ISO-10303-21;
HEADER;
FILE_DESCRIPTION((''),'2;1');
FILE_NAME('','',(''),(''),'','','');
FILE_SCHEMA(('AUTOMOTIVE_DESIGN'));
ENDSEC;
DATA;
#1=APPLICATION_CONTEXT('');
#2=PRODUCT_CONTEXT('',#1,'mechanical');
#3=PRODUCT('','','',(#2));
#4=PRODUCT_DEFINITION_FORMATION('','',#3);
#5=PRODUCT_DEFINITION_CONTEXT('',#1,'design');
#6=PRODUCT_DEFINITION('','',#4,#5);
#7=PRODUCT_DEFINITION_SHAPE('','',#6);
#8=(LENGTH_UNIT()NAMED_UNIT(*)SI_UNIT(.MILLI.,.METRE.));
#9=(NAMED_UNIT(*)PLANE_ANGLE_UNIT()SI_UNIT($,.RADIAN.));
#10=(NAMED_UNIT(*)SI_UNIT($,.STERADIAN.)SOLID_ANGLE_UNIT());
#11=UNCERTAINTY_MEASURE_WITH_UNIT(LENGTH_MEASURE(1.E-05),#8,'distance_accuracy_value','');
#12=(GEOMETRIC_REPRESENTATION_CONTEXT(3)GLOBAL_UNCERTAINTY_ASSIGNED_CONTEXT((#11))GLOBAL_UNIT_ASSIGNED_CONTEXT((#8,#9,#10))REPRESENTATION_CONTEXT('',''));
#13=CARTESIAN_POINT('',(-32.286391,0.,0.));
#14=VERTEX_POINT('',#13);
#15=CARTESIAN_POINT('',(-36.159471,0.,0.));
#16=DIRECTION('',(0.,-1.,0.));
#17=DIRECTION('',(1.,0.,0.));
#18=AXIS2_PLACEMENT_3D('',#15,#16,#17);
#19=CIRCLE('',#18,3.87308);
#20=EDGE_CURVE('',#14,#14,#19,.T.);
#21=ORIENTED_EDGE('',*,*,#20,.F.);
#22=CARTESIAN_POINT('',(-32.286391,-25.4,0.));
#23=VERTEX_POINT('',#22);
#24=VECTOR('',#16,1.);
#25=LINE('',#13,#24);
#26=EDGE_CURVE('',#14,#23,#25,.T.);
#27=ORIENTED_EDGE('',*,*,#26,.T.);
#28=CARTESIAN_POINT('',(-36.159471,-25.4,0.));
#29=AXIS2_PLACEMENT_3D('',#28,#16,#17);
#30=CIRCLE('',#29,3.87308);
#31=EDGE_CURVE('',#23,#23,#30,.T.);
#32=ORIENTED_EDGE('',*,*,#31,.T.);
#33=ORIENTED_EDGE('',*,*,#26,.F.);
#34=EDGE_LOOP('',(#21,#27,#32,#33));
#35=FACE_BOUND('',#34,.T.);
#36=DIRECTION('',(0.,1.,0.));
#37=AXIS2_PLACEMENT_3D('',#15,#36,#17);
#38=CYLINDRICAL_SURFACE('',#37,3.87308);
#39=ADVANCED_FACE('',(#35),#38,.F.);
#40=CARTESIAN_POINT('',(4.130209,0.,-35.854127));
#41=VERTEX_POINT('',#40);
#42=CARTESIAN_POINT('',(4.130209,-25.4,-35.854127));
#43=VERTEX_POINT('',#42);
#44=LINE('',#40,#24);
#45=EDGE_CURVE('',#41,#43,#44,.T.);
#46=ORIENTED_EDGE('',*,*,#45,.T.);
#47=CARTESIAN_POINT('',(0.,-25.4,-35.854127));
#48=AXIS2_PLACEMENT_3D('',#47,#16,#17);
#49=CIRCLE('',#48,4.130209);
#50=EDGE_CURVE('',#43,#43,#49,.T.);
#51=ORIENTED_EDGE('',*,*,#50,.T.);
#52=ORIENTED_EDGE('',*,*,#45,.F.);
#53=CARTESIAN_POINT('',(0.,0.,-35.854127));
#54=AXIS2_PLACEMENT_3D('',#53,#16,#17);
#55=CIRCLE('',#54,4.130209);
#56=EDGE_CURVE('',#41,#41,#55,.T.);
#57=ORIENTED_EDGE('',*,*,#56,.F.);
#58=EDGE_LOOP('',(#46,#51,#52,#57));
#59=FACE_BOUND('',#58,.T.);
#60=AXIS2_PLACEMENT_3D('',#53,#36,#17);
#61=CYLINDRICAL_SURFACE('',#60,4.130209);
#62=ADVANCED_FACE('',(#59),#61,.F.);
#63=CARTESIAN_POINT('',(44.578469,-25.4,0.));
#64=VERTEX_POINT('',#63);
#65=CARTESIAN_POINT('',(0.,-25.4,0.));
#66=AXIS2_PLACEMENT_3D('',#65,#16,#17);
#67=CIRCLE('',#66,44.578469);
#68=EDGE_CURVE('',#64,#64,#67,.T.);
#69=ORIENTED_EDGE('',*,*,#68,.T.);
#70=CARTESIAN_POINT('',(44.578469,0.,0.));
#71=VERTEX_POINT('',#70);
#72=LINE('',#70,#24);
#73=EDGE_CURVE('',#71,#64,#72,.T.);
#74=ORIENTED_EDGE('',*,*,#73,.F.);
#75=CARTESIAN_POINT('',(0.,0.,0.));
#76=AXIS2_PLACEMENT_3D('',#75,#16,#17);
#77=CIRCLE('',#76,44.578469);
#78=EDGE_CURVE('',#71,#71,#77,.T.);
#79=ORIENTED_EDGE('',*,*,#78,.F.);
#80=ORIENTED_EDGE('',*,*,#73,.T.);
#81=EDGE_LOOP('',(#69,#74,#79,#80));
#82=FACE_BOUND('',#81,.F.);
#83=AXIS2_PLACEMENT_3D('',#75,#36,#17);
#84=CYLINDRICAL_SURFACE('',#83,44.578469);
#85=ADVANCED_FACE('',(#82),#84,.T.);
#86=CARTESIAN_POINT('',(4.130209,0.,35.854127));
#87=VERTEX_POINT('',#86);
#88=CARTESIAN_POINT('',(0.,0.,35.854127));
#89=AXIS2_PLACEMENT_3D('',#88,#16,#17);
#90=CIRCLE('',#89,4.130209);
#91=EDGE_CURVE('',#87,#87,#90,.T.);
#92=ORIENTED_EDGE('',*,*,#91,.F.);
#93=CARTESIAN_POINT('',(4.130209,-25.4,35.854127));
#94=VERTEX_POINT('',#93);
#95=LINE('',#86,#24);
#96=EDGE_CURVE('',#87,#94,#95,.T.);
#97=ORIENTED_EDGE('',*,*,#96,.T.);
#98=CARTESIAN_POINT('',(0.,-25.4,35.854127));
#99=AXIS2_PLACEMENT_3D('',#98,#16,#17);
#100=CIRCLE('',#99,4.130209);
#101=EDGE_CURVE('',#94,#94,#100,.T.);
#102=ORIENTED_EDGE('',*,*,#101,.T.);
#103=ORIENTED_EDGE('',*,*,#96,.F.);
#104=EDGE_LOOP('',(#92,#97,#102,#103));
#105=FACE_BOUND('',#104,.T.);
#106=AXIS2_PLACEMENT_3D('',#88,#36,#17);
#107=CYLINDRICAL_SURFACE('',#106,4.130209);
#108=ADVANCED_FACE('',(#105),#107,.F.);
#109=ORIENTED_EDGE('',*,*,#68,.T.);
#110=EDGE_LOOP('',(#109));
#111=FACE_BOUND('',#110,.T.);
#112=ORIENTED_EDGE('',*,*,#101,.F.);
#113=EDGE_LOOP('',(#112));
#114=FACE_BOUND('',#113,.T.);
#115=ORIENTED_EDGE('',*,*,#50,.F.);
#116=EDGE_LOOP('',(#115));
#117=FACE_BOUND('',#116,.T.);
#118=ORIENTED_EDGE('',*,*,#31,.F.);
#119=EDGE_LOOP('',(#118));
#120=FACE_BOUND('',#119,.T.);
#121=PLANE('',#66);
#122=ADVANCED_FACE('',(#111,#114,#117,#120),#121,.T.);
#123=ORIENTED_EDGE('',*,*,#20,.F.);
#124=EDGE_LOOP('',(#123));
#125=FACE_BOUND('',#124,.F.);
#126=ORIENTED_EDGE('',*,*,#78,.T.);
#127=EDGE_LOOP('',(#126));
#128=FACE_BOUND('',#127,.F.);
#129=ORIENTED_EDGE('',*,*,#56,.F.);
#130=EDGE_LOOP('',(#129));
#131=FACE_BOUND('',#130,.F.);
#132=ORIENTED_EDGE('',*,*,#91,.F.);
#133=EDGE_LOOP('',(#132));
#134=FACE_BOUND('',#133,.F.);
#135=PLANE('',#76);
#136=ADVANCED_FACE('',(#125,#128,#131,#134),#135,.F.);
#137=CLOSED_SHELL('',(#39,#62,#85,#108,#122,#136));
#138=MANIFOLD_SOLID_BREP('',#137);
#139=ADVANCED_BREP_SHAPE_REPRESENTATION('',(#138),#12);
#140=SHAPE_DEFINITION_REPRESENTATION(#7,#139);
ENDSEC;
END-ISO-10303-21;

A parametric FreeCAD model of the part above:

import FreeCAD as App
import Part
import Sketcher
Q = App.Units.Quantity

doc = App.newDocument("Part")
body = doc.addObject("PartDesign::Body", "Body")

sketch1 = body.newObject("Sketcher::SketchObject", "Sketch")
sketch1.AttachmentSupport = (doc.getObject("XZ_Plane"), [""])
sketch1.MapMode = "FlatFace"
sketch1.addGeometry(Part.Circle(App.Vector(0, 0, 0), App.Vector(0, 0, 1), 44.6), False)
sketch1.addGeometry(Part.Circle(App.Vector(0, -35.9, 0), App.Vector(0, 0, 1), 4.1), False)
sketch1.addGeometry(Part.Circle(App.Vector(-36.2, 0, 0), App.Vector(0, 0, 1), 3.9), False)
sketch1.addGeometry(Part.Circle(App.Vector(0, 35.9, 0), App.Vector(0, 0, 1), 4.1), False)
sketch1.addConstraint(Sketcher.Constraint("Coincident", 0, 3, -1, 1))
sketch1.addConstraint(Sketcher.Constraint("Equal", 1, 3))
sketch1.addConstraint(Sketcher.Constraint("Symmetric", 1, 3, 3, 3, -1, 1))
sketch1.addConstraint(Sketcher.Constraint("PointOnObject", 1, 3, -2))
sketch1.addConstraint(Sketcher.Constraint("PointOnObject", 2, 3, -1))
sketch1.addConstraint(Sketcher.Constraint("Diameter", 2, 7.74616))
sketch1.addConstraint(Sketcher.Constraint("Diameter", 0, 89.156938))
sketch1.addConstraint(Sketcher.Constraint("Diameter", 1, 8.260418))
sketch1.addConstraint(Sketcher.Constraint("DistanceX", 2, 3, -1, 1, 36.159471))
sketch1.addConstraint(Sketcher.Constraint("DistanceY", 1, 3, -1, 1, 35.854127))
pad1 = body.newObject("PartDesign::Pad", "Pad")
pad1.Profile = sketch1
pad1.Length = Q("1 in")

doc.recompute()
